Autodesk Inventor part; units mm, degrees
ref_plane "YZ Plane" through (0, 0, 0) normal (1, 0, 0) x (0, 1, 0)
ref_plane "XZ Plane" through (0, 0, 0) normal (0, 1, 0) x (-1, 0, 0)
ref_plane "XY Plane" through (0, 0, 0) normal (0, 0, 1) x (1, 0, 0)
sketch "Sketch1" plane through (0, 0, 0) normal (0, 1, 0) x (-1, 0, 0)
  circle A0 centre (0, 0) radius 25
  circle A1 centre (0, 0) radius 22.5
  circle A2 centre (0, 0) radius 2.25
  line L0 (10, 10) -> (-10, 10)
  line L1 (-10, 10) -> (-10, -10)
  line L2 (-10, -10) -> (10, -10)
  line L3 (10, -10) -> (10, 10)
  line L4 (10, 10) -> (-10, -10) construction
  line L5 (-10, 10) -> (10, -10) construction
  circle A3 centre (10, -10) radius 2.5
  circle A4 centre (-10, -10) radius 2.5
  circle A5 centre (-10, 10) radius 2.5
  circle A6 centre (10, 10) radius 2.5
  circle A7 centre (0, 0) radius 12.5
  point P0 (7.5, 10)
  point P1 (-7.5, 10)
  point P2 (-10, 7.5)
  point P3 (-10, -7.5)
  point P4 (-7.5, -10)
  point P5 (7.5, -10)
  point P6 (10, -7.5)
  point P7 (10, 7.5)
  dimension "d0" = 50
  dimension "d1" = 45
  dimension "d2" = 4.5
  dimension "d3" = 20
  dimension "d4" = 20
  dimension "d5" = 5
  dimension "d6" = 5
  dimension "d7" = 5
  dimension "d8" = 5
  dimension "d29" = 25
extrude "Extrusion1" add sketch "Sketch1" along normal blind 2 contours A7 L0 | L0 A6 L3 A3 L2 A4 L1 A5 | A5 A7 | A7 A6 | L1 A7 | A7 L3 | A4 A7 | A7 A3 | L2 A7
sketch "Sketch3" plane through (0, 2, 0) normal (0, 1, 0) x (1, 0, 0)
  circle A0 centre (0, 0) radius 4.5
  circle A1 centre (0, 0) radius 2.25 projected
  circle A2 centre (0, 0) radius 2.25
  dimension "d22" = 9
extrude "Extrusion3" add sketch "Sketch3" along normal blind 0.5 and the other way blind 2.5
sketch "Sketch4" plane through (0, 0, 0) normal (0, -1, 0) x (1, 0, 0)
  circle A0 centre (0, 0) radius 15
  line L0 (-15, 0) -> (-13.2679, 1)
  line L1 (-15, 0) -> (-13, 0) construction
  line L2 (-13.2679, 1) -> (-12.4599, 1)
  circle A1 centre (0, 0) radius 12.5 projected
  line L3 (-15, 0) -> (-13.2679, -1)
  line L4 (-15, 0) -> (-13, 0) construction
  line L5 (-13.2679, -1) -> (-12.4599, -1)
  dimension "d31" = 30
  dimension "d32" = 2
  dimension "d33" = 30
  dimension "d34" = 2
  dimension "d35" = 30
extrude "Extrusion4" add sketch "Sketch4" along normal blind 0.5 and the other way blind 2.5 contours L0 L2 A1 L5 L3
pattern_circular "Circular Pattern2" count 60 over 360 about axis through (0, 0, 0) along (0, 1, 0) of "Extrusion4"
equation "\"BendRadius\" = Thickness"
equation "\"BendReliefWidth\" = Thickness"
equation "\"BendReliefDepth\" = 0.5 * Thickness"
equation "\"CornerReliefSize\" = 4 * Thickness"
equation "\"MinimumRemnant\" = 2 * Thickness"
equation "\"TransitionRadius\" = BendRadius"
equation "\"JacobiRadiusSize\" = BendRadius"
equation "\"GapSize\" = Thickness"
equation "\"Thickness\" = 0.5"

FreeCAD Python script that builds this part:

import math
import FreeCAD as App
import Part
import Sketcher
from FreeCAD import Vector
Q = App.Units.Quantity

doc = App.newDocument("Part")
body = doc.addObject("PartDesign::Body", "Body")

sketch1 = doc.addObject("Sketcher::SketchObject", "Sketch")
body.addObject(sketch1)
sketch1.AttachmentSupport = (doc.XZ_Plane, [""])
sketch1.MapMode = "FlatFace"
sketch1.addGeometry(Part.Circle(Vector(0, 0, 0), Vector(0, 0, 1), 12.5), False)
sketch1.addGeometry(Part.Circle(Vector(0, 0, 0), Vector(0, 0, 1), 2.25), False)
sketch1.addConstraint(Sketcher.Constraint("Coincident", 0, 3, -1, 1))
sketch1.addConstraint(Sketcher.Constraint("Coincident", 1, 3, -1, 1))
sketch1.addConstraint(Sketcher.Constraint("Diameter", 0, Q("25 mm")))
sketch1.addConstraint(Sketcher.Constraint("Diameter", 1, Q("4.5 mm")))
pad1 = doc.addObject("PartDesign::Pad", "Pad")
body.addObject(pad1)
pad1.Profile = sketch1
pad1.Length = 2
pad1.Reversed = True

sketch2 = doc.addObject("Sketcher::SketchObject", "Sketch001")
body.addObject(sketch2)
sketch2.AttachmentSupport = (doc.XZ_Plane, [""])
sketch2.MapMode = "FlatFace"
sketch2.AttachmentOffset = App.Placement(Vector(0, 0, -2), App.Rotation())
sketch2.addGeometry(Part.Circle(Vector(0, 0, 0), Vector(0, 0, 1), 4.5), False)
sketch2.addGeometry(Part.Circle(Vector(0, 0, 0), Vector(0, 0, 1), 2.25), False)
sketch2.addConstraint(Sketcher.Constraint("Coincident", 0, 3, -1, 1))
sketch2.addConstraint(Sketcher.Constraint("Coincident", 1, 3, -1, 1))
sketch2.addConstraint(Sketcher.Constraint("Diameter", 0, Q("9 mm")))
sketch2.addConstraint(Sketcher.Constraint("Diameter", 1, Q("4.5 mm")))
pad2 = doc.addObject("PartDesign::Pad", "Pad001")
body.addObject(pad2)
pad2.Profile = sketch2
pad2.Type = "TwoLengths"
pad2.Length = 0.5
pad2.Length2 = 2.5
pad2.Reversed = True

sketch3 = doc.addObject("Sketcher::SketchObject", "Sketch002")
body.addObject(sketch3)
sketch3.AttachmentSupport = (doc.XZ_Plane, [""])
sketch3.MapMode = "FlatFace"
sketch3.addGeometry(Part.LineSegment(Vector(-13.2679, 1, 0), Vector(-15, 0, 0)), False)
sketch3.addGeometry(Part.LineSegment(Vector(-15, 0, 0), Vector(-13.2679, -1, 0)), False)
sketch3.addGeometry(Part.LineSegment(Vector(-13.2679, -1, 0), Vector(-12.4599, -1, 0)), False)
sketch3.addGeometry(Part.ArcOfCircle(Part.Circle(Vector(0, 0, 0), Vector(0, 0, 1), 12.5), math.radians(175.411421), math.radians(184.588579)), False)
sketch3.addGeometry(Part.LineSegment(Vector(-12.4599, 1, 0), Vector(-13.2679, 1, 0)), False)
sketch3.addConstraint(Sketcher.Constraint("Coincident", 0, 2, 1, 1))
sketch3.addConstraint(Sketcher.Constraint("Coincident", 1, 2, 2, 1))
sketch3.addConstraint(Sketcher.Constraint("Coincident", 2, 2, 3, 2))
sketch3.addConstraint(Sketcher.Constraint("Coincident", 3, 1, 4, 1))
sketch3.addConstraint(Sketcher.Constraint("Coincident", 4, 2, 0, 1))
sketch3.addConstraint(Sketcher.Constraint("Horizontal", 2))
sketch3.addConstraint(Sketcher.Constraint("Horizontal", 4))
sketch3.addConstraint(Sketcher.Constraint("Coincident", 3, 3, -1, 1))
sketch3.addConstraint(Sketcher.Constraint("Symmetric", 1, 2, 4, 2, -1))
sketch3.addConstraint(Sketcher.Constraint("PointOnObject", 0, 2, -1))
sketch3.addConstraint(Sketcher.Constraint("Distance", 0, Q("2 mm")))
sketch3.addConstraint(Sketcher.Constraint("DistanceY", 2, 2, 3, 1, Q("2 mm")))
sketch3.addConstraint(Sketcher.Constraint("Radius", 3, Q("12.5 mm")))
sketch3.addConstraint(Sketcher.Constraint("DistanceX", 0, 2, -1, 1, Q("15 mm")))
pad3 = doc.addObject("PartDesign::Pad", "Pad002")
body.addObject(pad3)
pad3.Profile = sketch3
pad3.Type = "TwoLengths"
pad3.Length = 0.5
pad3.Length2 = 2.5
doc.recompute()

polarpattern = doc.addObject("PartDesign::PolarPattern", "PolarPattern")
body.addObject(polarpattern)
polarpattern.Originals = [pad3]
polarpattern.Axis = (doc.Y_Axis, [""])
polarpattern.Angle = 360
polarpattern.Occurrences = 60
body.Tip = polarpattern

doc.recompute()
